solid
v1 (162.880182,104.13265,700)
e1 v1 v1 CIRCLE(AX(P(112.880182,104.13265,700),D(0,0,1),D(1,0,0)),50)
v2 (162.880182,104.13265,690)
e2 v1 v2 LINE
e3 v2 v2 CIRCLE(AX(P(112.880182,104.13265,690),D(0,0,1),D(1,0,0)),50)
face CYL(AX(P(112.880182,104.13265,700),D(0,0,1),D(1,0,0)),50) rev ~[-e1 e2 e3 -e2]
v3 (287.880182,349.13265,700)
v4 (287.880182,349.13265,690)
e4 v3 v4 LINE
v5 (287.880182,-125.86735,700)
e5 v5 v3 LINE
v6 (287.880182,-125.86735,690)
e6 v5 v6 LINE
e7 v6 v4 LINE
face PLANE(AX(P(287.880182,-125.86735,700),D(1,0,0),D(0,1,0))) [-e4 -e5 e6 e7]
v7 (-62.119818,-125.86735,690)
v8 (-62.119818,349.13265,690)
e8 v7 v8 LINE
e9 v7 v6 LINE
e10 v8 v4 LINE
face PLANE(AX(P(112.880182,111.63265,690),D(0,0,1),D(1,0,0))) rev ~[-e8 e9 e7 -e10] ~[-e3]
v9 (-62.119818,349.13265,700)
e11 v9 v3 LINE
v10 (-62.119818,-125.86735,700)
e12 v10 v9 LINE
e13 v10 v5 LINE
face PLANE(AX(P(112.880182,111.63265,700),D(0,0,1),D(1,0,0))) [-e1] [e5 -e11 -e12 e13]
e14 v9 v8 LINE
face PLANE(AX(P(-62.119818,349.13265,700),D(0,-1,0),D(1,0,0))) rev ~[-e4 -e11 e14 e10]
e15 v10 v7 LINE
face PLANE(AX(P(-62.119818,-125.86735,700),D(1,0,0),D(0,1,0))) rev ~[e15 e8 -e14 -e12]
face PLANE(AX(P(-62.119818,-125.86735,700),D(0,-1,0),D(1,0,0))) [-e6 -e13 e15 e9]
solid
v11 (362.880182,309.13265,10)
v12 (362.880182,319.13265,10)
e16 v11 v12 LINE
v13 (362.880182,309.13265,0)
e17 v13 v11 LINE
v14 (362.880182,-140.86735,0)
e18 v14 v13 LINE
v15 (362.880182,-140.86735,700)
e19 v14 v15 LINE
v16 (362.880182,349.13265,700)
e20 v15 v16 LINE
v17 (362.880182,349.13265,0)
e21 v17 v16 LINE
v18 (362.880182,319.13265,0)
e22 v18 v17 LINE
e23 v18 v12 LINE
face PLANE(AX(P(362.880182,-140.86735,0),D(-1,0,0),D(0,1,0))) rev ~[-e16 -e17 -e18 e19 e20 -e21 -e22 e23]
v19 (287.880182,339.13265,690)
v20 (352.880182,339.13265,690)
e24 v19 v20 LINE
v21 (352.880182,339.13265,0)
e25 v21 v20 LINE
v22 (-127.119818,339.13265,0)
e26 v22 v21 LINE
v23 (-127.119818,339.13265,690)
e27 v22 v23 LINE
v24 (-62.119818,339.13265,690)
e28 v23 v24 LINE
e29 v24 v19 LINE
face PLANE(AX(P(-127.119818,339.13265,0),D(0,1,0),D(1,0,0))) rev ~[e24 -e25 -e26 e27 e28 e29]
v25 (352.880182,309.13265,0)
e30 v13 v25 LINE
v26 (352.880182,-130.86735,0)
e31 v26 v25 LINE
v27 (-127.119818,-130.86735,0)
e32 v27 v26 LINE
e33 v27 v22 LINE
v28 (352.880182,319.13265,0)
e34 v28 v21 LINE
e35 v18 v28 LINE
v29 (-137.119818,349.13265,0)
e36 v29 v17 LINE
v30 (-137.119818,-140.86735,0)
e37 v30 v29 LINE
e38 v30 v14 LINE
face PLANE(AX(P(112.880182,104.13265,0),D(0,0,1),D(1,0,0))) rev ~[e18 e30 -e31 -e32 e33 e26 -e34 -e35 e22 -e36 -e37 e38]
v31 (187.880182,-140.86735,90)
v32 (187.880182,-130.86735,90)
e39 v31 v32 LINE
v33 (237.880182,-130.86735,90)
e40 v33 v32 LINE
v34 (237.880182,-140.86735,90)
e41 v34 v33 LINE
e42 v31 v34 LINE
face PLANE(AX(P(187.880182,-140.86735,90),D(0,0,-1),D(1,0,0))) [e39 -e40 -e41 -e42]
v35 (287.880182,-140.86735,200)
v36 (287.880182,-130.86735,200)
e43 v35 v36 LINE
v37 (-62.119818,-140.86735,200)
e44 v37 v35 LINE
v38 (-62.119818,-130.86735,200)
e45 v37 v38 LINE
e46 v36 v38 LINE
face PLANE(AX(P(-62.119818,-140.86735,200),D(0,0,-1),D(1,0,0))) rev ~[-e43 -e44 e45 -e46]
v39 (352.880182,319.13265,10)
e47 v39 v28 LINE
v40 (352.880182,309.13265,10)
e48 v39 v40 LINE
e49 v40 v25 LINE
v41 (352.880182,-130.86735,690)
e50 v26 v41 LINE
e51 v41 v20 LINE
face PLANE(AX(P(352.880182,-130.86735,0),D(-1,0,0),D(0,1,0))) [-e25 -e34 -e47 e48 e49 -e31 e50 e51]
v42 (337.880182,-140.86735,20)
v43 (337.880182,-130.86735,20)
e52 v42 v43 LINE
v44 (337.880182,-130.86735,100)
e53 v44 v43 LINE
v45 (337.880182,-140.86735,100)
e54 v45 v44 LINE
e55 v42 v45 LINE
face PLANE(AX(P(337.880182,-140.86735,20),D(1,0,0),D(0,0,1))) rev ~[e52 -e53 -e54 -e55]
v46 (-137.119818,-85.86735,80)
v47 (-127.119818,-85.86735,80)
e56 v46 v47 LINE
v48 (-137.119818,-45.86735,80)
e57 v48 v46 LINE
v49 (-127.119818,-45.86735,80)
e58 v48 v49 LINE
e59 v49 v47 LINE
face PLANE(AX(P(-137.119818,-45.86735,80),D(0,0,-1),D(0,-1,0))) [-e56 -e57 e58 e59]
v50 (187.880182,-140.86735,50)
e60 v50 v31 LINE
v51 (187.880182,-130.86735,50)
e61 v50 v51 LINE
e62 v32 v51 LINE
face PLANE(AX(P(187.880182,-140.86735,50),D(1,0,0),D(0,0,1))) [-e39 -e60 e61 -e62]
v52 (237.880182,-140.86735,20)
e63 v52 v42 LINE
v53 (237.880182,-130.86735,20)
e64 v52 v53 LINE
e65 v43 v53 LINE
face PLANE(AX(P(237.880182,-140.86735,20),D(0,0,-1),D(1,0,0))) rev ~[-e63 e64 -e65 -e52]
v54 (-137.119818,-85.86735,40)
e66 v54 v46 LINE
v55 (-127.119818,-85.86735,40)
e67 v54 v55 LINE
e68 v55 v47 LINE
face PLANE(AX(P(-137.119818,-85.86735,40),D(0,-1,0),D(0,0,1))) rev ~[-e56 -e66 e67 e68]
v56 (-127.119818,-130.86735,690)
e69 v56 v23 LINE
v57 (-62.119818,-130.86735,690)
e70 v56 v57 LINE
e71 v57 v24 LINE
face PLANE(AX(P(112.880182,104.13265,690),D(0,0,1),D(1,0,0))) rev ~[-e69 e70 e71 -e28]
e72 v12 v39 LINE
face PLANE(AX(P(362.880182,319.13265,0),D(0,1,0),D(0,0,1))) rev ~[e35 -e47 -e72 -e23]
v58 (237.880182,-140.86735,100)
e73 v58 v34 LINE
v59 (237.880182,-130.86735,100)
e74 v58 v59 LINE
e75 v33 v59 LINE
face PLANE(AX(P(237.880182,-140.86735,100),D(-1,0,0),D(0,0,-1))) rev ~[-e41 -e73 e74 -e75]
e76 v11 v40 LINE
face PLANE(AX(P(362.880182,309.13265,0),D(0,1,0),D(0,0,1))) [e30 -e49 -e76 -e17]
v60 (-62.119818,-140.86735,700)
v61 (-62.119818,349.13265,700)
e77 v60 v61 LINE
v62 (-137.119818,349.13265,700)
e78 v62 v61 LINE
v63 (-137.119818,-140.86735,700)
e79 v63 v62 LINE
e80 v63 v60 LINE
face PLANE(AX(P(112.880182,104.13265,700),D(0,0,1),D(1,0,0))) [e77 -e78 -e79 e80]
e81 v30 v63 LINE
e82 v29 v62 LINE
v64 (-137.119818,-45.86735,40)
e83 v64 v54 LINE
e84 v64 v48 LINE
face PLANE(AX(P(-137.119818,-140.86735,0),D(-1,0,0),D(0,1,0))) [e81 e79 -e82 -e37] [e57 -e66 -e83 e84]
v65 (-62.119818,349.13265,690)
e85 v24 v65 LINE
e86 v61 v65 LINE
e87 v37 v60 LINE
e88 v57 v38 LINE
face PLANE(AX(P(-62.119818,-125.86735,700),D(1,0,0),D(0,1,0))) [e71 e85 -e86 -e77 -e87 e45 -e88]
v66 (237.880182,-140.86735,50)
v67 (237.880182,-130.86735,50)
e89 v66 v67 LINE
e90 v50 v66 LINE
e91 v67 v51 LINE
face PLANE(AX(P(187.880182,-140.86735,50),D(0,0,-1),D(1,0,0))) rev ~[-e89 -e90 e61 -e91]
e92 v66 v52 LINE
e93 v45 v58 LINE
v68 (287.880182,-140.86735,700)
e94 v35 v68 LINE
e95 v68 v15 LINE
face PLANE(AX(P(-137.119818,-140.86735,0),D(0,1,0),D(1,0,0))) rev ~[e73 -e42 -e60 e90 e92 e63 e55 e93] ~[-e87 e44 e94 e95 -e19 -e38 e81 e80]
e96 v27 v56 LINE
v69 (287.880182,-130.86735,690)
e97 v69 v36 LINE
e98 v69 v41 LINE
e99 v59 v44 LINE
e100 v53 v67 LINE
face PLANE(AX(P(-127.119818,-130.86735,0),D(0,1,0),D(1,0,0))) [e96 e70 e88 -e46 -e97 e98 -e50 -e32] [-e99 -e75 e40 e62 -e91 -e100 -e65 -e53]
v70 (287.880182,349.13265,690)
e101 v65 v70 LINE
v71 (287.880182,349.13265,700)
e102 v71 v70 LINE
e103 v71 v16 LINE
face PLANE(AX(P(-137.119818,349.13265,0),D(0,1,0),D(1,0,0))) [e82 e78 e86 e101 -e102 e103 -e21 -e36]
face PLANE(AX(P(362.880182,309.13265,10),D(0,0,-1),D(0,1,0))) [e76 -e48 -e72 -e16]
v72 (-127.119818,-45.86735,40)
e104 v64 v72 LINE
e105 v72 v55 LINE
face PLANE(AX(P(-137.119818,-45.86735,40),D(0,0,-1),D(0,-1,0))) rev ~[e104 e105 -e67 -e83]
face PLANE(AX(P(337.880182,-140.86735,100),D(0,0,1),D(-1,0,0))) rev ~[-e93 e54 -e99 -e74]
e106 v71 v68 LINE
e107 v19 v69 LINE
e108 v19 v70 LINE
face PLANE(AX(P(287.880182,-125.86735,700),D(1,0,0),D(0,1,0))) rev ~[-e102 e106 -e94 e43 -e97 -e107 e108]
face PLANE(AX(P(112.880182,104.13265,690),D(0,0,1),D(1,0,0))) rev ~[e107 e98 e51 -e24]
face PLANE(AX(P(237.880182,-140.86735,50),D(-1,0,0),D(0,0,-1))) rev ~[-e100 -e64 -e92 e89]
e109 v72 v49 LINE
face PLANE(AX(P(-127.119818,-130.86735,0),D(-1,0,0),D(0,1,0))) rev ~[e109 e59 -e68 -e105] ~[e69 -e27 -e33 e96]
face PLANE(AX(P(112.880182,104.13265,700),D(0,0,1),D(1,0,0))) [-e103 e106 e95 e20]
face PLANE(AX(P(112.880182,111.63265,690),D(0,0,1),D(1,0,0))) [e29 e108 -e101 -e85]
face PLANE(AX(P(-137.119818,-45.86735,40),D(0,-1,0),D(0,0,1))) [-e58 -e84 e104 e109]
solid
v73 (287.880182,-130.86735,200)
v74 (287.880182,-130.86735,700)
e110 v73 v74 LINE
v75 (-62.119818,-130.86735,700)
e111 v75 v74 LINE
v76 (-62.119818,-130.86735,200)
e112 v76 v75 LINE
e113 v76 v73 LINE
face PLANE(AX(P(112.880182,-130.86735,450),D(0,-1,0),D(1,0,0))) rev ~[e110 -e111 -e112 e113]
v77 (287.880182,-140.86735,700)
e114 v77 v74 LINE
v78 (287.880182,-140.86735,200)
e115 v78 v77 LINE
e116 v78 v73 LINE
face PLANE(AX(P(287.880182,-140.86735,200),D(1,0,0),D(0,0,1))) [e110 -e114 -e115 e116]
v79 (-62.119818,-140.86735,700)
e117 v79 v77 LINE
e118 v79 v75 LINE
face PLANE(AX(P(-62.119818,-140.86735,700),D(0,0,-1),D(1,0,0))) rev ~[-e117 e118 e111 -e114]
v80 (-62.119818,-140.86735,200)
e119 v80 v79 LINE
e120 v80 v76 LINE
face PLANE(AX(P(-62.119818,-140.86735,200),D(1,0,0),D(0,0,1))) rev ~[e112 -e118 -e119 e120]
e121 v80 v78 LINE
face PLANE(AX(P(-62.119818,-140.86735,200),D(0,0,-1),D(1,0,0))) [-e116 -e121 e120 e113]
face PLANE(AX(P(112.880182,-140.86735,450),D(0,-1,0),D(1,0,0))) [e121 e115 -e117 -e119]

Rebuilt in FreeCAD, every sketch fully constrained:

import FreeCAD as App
import Part
import Sketcher
from FreeCAD import Vector


def add_polygon(sketch, points):
    """Adds a closed chain of lines whose ends are joined by coincident constraints."""
    first, n = sketch.GeometryCount, len(points)
    for a, b in zip(points, points[1:] + points[:1]):
        sketch.addGeometry(Part.LineSegment(App.Vector(*a, 0), App.Vector(*b, 0)), False)
    for i in range(n):
        sketch.addConstraint(Sketcher.Constraint("Coincident", first + i, 2, first + (i + 1) % n, 1))

doc = App.newDocument("Part")
body = doc.addObject("PartDesign::Body", "Body")

# Sketch on XY plane
sketch1 = body.newObject("Sketcher::SketchObject", "Sketch")
sketch1.AttachmentSupport = (doc.getObject("XY_Plane"), [""])
sketch1.MapMode = "FlatFace"
add_polygon(sketch1, [(-137.119818, 349.13265), (-137.119818, -140.86735), (362.880182, -140.86735), (362.880182, 349.13265)])  # lines 0-3
add_polygon(sketch1, [(352.880182, -130.86735), (-127.119818, -130.86735), (-127.119818, 339.13265), (352.880182, 339.13265)])  # lines 4-7
sketch1.addConstraint([
    Sketcher.Constraint("Vertical", 0),
    Sketcher.Constraint("Horizontal", 1),
    Sketcher.Constraint("Vertical", 2),
    Sketcher.Constraint("Horizontal", 3),
    Sketcher.Constraint("Horizontal", 4),
    Sketcher.Constraint("Vertical", 5),
    Sketcher.Constraint("Horizontal", 6),
    Sketcher.Constraint("Vertical", 7),
    Sketcher.Constraint("DistanceX", 1, 1, 1, 2, 500.0),
    Sketcher.Constraint("DistanceX", 4, 2, 4, 1, 480.0),
    Sketcher.Constraint("DistanceY", 0, 2, 0, 1, 490.0),
    Sketcher.Constraint("DistanceY", 5, 1, 5, 2, 470.0),
    Sketcher.Constraint("DistanceX", 0, 2, 4, 2, 10.0),
    Sketcher.Constraint("DistanceY", 0, 2, 4, 2, 10.0),
    Sketcher.Constraint("DistanceX", 0, 2, -1, 1, 137.119818),
    Sketcher.Constraint("DistanceY", 0, 2, -1, 1, 140.86735),
])
pad1 = body.newObject("PartDesign::Pad", "Pad")
pad1.Profile = sketch1
pad1.Length = 700

# Sketch on XY plane
sketch2 = body.newObject("Sketcher::SketchObject", "Sketch001")
sketch2.AttachmentSupport = (doc.getObject("XY_Plane"), [""])
sketch2.MapMode = "FlatFace"
sketch2.AttachmentOffset = App.Placement(Vector(0, 0, 700), App.Rotation())
add_polygon(sketch2, [(-127.119818, 339.13265), (-127.119818, -130.86735), (352.880182, -130.86735), (352.880182, 339.13265)])  # lines 0-3
sketch2.addConstraint([
    Sketcher.Constraint("Vertical", 0),
    Sketcher.Constraint("Horizontal", 1),
    Sketcher.Constraint("Vertical", 2),
    Sketcher.Constraint("Horizontal", 3),
    Sketcher.Constraint("DistanceX", 1, 1, 1, 2, 480.0),
    Sketcher.Constraint("DistanceY", 0, 2, 0, 1, 470.0),
    Sketcher.Constraint("DistanceX", 0, 2, -1, 1, 127.119818),
    Sketcher.Constraint("DistanceY", 0, 2, -1, 1, 130.86735),
])
pad2 = body.newObject("PartDesign::Pad", "Pad001")
pad2.Profile = sketch2
pad2.Length = 10
pad2.Reversed = True

# Sketch on XZ plane
sketch3 = body.newObject("Sketcher::SketchObject", "Sketch002")
sketch3.AttachmentSupport = (doc.getObject("XZ_Plane"), [""])
sketch3.MapMode = "FlatFace"
sketch3.AttachmentOffset = App.Placement(Vector(0, 0, 140.86735), App.Rotation())
add_polygon(sketch3, [(237.880182, 20), (337.880182, 20), (337.880182, 100), (237.880182, 100), (237.880182, 90), (187.880182, 90), (187.880182, 50), (237.880182, 50)])  # lines 0-7
sketch3.addConstraint([
    Sketcher.Constraint("Horizontal", 0),
    Sketcher.Constraint("Vertical", 1),
    Sketcher.Constraint("Horizontal", 2),
    Sketcher.Constraint("Vertical", 3),
    Sketcher.Constraint("Horizontal", 4),
    Sketcher.Constraint("Vertical", 5),
    Sketcher.Constraint("Horizontal", 6),
    Sketcher.Constraint("Vertical", 7),
    Sketcher.Constraint("Vertical", 3, 2, 6, 2),
    Sketcher.Constraint("DistanceX", 0, 1, 0, 2, 100.0),
    Sketcher.Constraint("DistanceX", 4, 2, 4, 1, 50.0),
    Sketcher.Constraint("DistanceY", 1, 1, 1, 2, 80.0),
    Sketcher.Constraint("DistanceY", 3, 2, 3, 1, 10.0),
    Sketcher.Constraint("DistanceY", 5, 2, 5, 1, 40.0),
    Sketcher.Constraint("DistanceY", -1, 1, 0, 2, 20.0),
    Sketcher.Constraint("DistanceX", -1, 1, 0, 2, 337.880182),
])
pocket1 = body.newObject("PartDesign::Pocket", "Pocket")
pocket1.Profile = sketch3
pocket1.Length = 25

# Sketch on YZ plane
sketch4 = body.newObject("Sketcher::SketchObject", "Sketch003")
sketch4.AttachmentSupport = (doc.getObject("YZ_Plane"), [""])
sketch4.MapMode = "FlatFace"
sketch4.AttachmentOffset = App.Placement(Vector(0, 0, -137.119818), App.Rotation())
add_polygon(sketch4, [(-45.86735, 80), (-45.86735, 40), (-85.86735, 40), (-85.86735, 80)])  # lines 0-3
sketch4.addConstraint([
    Sketcher.Constraint("Vertical", 0),
    Sketcher.Constraint("Horizontal", 1),
    Sketcher.Constraint("Vertical", 2),
    Sketcher.Constraint("Horizontal", 3),
    Sketcher.Constraint("Equal", 3, 0),
    Sketcher.Constraint("DistanceX", 1, 2, 1, 1, 40.0),
    Sketcher.Constraint("DistanceY", -1, 1, 0, 2, 40.0),
    Sketcher.Constraint("DistanceX", 0, 2, -1, 1, 45.86735),
])
pocket2 = body.newObject("PartDesign::Pocket", "Pocket001")
pocket2.Profile = sketch4
pocket2.Length = 25
pocket2.Reversed = True

# Sketch on YZ plane
sketch5 = body.newObject("Sketcher::SketchObject", "Sketch004")
sketch5.AttachmentSupport = (doc.getObject("YZ_Plane"), [""])
sketch5.MapMode = "FlatFace"
sketch5.AttachmentOffset = App.Placement(Vector(0, 0, 362.880182), App.Rotation())
add_polygon(sketch5, [(309.13265, 10), (309.13265, 0), (319.13265, 0), (319.13265, 10)])  # lines 0-3
sketch5.addConstraint([
    Sketcher.Constraint("Vertical", 0),
    Sketcher.Constraint("Horizontal", 1),
    Sketcher.Constraint("Vertical", 2),
    Sketcher.Constraint("Horizontal", 3),
    Sketcher.Constraint("PointOnObject", 0, 2, -1),
    Sketcher.Constraint("Equal", 3, 0),
    Sketcher.Constraint("DistanceX", 1, 1, 1, 2, 10.0),
    Sketcher.Constraint("DistanceX", -1, 1, 0, 2, 309.13265),
])
pocket3 = body.newObject("PartDesign::Pocket", "Pocket002")
pocket3.Profile = sketch5
pocket3.Length = 25

# Sketch on XZ plane
sketch6 = body.newObject("Sketcher::SketchObject", "Sketch005")
sketch6.AttachmentSupport = (doc.getObject("XZ_Plane"), [""])
sketch6.MapMode = "FlatFace"
sketch6.AttachmentOffset = App.Placement(Vector(0, 0, 140.86735), App.Rotation())
add_polygon(sketch6, [(-62.119818, 700), (-62.119818, 200), (287.880182, 200), (287.880182, 700)])  # lines 0-3
sketch6.addConstraint([
    Sketcher.Constraint("Vertical", 0),
    Sketcher.Constraint("Horizontal", 1),
    Sketcher.Constraint("Vertical", 2),
    Sketcher.Constraint("Horizontal", 3),
    Sketcher.Constraint("DistanceX", 1, 1, 1, 2, 350.0),
    Sketcher.Constraint("DistanceY", 0, 2, 0, 1, 500.0),
    Sketcher.Constraint("DistanceY", -1, 1, 0, 2, 200.0),
    Sketcher.Constraint("DistanceX", 0, 2, -1, 1, 62.119818),
])
pocket4 = body.newObject("PartDesign::Pocket", "Pocket003")
pocket4.Profile = sketch6
pocket4.Length = 15

# Sketch on XY plane
sketch7 = body.newObject("Sketcher::SketchObject", "Sketch006")
sketch7.AttachmentSupport = (doc.getObject("XY_Plane"), [""])
sketch7.MapMode = "FlatFace"
sketch7.AttachmentOffset = App.Placement(Vector(0, 0, 700), App.Rotation())
add_polygon(sketch7, [(-62.119818, 349.13265), (-62.119818, -125.86735), (287.880182, -125.86735), (287.880182, 349.13265)])  # lines 0-3
sketch7.addConstraint([
    Sketcher.Constraint("Vertical", 0),
    Sketcher.Constraint("Horizontal", 1),
    Sketcher.Constraint("Vertical", 2),
    Sketcher.Constraint("Horizontal", 3),
    Sketcher.Constraint("DistanceX", 1, 1, 1, 2, 350.0),
    Sketcher.Constraint("DistanceY", 0, 2, 0, 1, 475.0),
    Sketcher.Constraint("DistanceX", 0, 2, -1, 1, 62.119818),
    Sketcher.Constraint("DistanceY", 0, 2, -1, 1, 125.86735),
])
pocket5 = body.newObject("PartDesign::Pocket", "Pocket004")
pocket5.Profile = sketch7
pocket5.Length = 10
body2 = doc.addObject("PartDesign::Body", "Body001")

# Sketch on XZ plane
sketch8 = body2.newObject("Sketcher::SketchObject", "Sketch007")
sketch8.AttachmentSupport = (doc.getObject("XZ_Plane001"), [""])
sketch8.MapMode = "FlatFace"
sketch8.AttachmentOffset = App.Placement(Vector(0, 0, 140.86735), App.Rotation())
add_polygon(sketch8, [(-62.119818, 700), (-62.119818, 200), (287.880182, 200), (287.880182, 700)])  # lines 0-3
sketch8.addConstraint([
    Sketcher.Constraint("Vertical", 0),
    Sketcher.Constraint("Horizontal", 1),
    Sketcher.Constraint("Vertical", 2),
    Sketcher.Constraint("Horizontal", 3),
    Sketcher.Constraint("DistanceX", 1, 1, 1, 2, 350.0),
    Sketcher.Constraint("DistanceY", 0, 2, 0, 1, 500.0),
    Sketcher.Constraint("DistanceY", -1, 1, 0, 2, 200.0),
    Sketcher.Constraint("DistanceX", 0, 2, -1, 1, 62.119818),
])
pad3 = body2.newObject("PartDesign::Pad", "Pad002")
pad3.Profile = sketch8
pad3.Length = 10
pad3.Reversed = True
body3 = doc.addObject("PartDesign::Body", "Body002")

# Sketch on XY plane
sketch9 = body3.newObject("Sketcher::SketchObject", "Sketch008")
sketch9.AttachmentSupport = (doc.getObject("XY_Plane002"), [""])
sketch9.MapMode = "FlatFace"
sketch9.AttachmentOffset = App.Placement(Vector(0, 0, 700), App.Rotation())
add_polygon(sketch9, [(-62.119818, 349.13265), (-62.119818, -125.86735), (287.880182, -125.86735), (287.880182, 349.13265)])  # lines 0-3
sketch9.addConstraint([
    Sketcher.Constraint("Vertical", 0),
    Sketcher.Constraint("Horizontal", 1),
    Sketcher.Constraint("Vertical", 2),
    Sketcher.Constraint("Horizontal", 3),
    Sketcher.Constraint("DistanceX", 1, 1, 1, 2, 350.0),
    Sketcher.Constraint("DistanceY", 0, 2, 0, 1, 475.0),
    Sketcher.Constraint("DistanceX", 0, 2, -1, 1, 62.119818),
    Sketcher.Constraint("DistanceY", 0, 2, -1, 1, 125.86735),
])
pad4 = body3.newObject("PartDesign::Pad", "Pad003")
pad4.Profile = sketch9
pad4.Length = 10
pad4.Reversed = True

# Sketch on XY plane
sketch10 = body3.newObject("Sketcher::SketchObject", "Sketch009")
sketch10.AttachmentSupport = (doc.getObject("XY_Plane002"), [""])
sketch10.MapMode = "FlatFace"
sketch10.AttachmentOffset = App.Placement(Vector(0, 0, 700), App.Rotation())
sketch10.addGeometry(Part.Circle(Vector(112.880182, 104.13265, 0), Vector(0, 0, 1), 50), False)
sketch10.addConstraint([
    Sketcher.Constraint("Diameter", 0, 100.0),
    Sketcher.Constraint("DistanceX", -1, 1, 0, 3, 112.880182),
    Sketcher.Constraint("DistanceY", -1, 1, 0, 3, 104.13265),
])
pocket6 = body3.newObject("PartDesign::Pocket", "Pocket005")
pocket6.Profile = sketch10
pocket6.Length = 10

doc.recompute()
